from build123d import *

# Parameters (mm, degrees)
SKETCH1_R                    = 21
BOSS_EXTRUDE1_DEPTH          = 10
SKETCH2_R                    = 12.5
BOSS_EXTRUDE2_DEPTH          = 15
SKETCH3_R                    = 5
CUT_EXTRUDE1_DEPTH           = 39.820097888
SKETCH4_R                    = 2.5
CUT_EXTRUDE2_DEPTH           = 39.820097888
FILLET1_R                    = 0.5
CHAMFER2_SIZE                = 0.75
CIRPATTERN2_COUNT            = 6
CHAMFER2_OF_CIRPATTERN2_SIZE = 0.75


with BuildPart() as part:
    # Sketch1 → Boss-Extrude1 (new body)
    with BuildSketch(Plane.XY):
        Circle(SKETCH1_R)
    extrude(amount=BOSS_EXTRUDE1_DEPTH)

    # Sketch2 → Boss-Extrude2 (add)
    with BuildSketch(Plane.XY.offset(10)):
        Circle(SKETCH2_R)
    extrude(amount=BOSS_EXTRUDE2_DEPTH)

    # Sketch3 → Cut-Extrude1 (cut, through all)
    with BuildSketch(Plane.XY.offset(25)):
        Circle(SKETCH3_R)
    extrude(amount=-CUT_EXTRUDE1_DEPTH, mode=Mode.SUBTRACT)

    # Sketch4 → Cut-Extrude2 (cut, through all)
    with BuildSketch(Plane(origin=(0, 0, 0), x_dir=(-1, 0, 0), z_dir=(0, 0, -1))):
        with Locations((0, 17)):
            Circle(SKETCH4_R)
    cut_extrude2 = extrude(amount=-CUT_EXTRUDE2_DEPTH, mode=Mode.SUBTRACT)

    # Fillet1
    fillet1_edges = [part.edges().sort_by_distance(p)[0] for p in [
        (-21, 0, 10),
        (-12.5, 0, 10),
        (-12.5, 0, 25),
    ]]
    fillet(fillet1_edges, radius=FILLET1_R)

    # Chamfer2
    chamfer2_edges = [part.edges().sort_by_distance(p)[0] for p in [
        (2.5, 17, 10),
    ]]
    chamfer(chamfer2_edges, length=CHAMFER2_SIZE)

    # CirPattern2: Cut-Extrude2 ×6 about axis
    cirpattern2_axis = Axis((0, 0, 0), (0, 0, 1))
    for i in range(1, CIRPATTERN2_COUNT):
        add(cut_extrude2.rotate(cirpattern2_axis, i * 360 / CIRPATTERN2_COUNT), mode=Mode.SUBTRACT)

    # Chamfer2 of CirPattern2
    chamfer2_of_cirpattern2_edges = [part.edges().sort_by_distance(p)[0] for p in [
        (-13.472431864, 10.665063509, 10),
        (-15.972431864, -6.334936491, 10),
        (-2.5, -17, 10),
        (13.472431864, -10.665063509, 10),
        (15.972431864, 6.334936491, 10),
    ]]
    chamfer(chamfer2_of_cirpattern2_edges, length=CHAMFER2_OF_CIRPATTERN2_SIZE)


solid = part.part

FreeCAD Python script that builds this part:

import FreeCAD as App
import Part
import Sketcher
from FreeCAD import Vector


def edges_at(feature, points):
    """Names of the edges that pass closest to the given points."""
    edges = feature.Shape.Edges
    near = lambda p: min(range(len(edges)), key=lambda i: edges[i].distToShape(Part.Vertex(*p))[0])
    return sorted({f"Edge{near(p) + 1}" for p in points})

doc = App.newDocument("Part")
body = doc.addObject("PartDesign::Body", "Body")

sketch1 = body.newObject("Sketcher::SketchObject", "Sketch")
sketch1.AttachmentSupport = (doc.getObject("XY_Plane"), [""])
sketch1.MapMode = "FlatFace"
sketch1.addGeometry(Part.Circle(Vector(0, 0, 0), Vector(0, 0, 1), 21), False)
sketch1.addConstraint(Sketcher.Constraint("Coincident", 0, 3, -1, 1))
sketch1.addConstraint(Sketcher.Constraint("Diameter", 0, 42.0))
pad1 = body.newObject("PartDesign::Pad", "Pad")
pad1.Profile = sketch1
pad1.Length = 10

sketch2 = body.newObject("Sketcher::SketchObject", "Sketch001")
sketch2.AttachmentSupport = (doc.getObject("XY_Plane"), [""])
sketch2.MapMode = "FlatFace"
sketch2.AttachmentOffset = App.Placement(Vector(0, 0, 10), App.Rotation())
sketch2.addGeometry(Part.Circle(Vector(0, 0, 0), Vector(0, 0, 1), 12.5), False)
sketch2.addConstraint(Sketcher.Constraint("Coincident", 0, 3, -1, 1))
sketch2.addConstraint(Sketcher.Constraint("Diameter", 0, 25.0))
pad2 = body.newObject("PartDesign::Pad", "Pad001")
pad2.Profile = sketch2
pad2.Length = 15

sketch3 = body.newObject("Sketcher::SketchObject", "Sketch002")
sketch3.AttachmentSupport = (doc.getObject("XY_Plane"), [""])
sketch3.MapMode = "FlatFace"
sketch3.AttachmentOffset = App.Placement(Vector(0, 0, 25), App.Rotation())
sketch3.addGeometry(Part.Circle(Vector(0, 0, 0), Vector(0, 0, 1), 5), False)
sketch3.addConstraint(Sketcher.Constraint("Coincident", 0, 3, -1, 1))
sketch3.addConstraint(Sketcher.Constraint("Diameter", 0, 10.0))
pocket1 = body.newObject("PartDesign::Pocket", "Pocket")
pocket1.Profile = sketch3
pocket1.Type = "ThroughAll"

sketch4 = body.newObject("Sketcher::SketchObject", "Sketch003")
sketch4.AttachmentSupport = (doc.getObject("XY_Plane"), [""])
sketch4.MapMode = "FlatFace"
sketch4.addGeometry(Part.Circle(Vector(0, 17, 0), Vector(0, 0, 1), 2.5), False)
sketch4.addConstraint(Sketcher.Constraint("PointOnObject", 0, 3, -2))
sketch4.addConstraint(Sketcher.Constraint("Diameter", 0, 5.0))
sketch4.addConstraint(Sketcher.Constraint("DistanceY", -1, 1, 0, 3, 17.0))
pocket2 = body.newObject("PartDesign::Pocket", "Pocket001")
pocket2.Profile = sketch4
pocket2.Type = "ThroughAll"
pocket2.Reversed = True
doc.recompute()

fillet = body.newObject("PartDesign::Fillet", "Fillet")
fillet.Base = (pocket2, edges_at(pocket2, [(-21, 0, 10), (-12.5, 0, 10), (-12.5, 0, 25)]))
fillet.Radius = 0.5
doc.recompute()

chamfer = body.newObject("PartDesign::Chamfer", "Chamfer")
chamfer.Base = (fillet, edges_at(fillet, [(2.5, 17, 10)]))
chamfer.Size = 0.75
doc.recompute()

polarpattern = body.newObject("PartDesign::PolarPattern", "PolarPattern")
polarpattern.Originals = [pocket2]
polarpattern.Axis = (doc.getObject("Z_Axis"), [""])
polarpattern.Angle = 360
polarpattern.Occurrences = 6
body.Tip = polarpattern
doc.recompute()

chamfer2 = body.newObject("PartDesign::Chamfer", "Chamfer001")
chamfer2.Base = (polarpattern, edges_at(polarpattern, [
    (-13.472, 10.665, 10),
    (-15.972, -6.335, 10),
    (-2.5, -17, 10),
    (13.472, -10.665, 10),
    (15.972, 6.335, 10),
]))
chamfer2.Size = 0.75

doc.recompute()
